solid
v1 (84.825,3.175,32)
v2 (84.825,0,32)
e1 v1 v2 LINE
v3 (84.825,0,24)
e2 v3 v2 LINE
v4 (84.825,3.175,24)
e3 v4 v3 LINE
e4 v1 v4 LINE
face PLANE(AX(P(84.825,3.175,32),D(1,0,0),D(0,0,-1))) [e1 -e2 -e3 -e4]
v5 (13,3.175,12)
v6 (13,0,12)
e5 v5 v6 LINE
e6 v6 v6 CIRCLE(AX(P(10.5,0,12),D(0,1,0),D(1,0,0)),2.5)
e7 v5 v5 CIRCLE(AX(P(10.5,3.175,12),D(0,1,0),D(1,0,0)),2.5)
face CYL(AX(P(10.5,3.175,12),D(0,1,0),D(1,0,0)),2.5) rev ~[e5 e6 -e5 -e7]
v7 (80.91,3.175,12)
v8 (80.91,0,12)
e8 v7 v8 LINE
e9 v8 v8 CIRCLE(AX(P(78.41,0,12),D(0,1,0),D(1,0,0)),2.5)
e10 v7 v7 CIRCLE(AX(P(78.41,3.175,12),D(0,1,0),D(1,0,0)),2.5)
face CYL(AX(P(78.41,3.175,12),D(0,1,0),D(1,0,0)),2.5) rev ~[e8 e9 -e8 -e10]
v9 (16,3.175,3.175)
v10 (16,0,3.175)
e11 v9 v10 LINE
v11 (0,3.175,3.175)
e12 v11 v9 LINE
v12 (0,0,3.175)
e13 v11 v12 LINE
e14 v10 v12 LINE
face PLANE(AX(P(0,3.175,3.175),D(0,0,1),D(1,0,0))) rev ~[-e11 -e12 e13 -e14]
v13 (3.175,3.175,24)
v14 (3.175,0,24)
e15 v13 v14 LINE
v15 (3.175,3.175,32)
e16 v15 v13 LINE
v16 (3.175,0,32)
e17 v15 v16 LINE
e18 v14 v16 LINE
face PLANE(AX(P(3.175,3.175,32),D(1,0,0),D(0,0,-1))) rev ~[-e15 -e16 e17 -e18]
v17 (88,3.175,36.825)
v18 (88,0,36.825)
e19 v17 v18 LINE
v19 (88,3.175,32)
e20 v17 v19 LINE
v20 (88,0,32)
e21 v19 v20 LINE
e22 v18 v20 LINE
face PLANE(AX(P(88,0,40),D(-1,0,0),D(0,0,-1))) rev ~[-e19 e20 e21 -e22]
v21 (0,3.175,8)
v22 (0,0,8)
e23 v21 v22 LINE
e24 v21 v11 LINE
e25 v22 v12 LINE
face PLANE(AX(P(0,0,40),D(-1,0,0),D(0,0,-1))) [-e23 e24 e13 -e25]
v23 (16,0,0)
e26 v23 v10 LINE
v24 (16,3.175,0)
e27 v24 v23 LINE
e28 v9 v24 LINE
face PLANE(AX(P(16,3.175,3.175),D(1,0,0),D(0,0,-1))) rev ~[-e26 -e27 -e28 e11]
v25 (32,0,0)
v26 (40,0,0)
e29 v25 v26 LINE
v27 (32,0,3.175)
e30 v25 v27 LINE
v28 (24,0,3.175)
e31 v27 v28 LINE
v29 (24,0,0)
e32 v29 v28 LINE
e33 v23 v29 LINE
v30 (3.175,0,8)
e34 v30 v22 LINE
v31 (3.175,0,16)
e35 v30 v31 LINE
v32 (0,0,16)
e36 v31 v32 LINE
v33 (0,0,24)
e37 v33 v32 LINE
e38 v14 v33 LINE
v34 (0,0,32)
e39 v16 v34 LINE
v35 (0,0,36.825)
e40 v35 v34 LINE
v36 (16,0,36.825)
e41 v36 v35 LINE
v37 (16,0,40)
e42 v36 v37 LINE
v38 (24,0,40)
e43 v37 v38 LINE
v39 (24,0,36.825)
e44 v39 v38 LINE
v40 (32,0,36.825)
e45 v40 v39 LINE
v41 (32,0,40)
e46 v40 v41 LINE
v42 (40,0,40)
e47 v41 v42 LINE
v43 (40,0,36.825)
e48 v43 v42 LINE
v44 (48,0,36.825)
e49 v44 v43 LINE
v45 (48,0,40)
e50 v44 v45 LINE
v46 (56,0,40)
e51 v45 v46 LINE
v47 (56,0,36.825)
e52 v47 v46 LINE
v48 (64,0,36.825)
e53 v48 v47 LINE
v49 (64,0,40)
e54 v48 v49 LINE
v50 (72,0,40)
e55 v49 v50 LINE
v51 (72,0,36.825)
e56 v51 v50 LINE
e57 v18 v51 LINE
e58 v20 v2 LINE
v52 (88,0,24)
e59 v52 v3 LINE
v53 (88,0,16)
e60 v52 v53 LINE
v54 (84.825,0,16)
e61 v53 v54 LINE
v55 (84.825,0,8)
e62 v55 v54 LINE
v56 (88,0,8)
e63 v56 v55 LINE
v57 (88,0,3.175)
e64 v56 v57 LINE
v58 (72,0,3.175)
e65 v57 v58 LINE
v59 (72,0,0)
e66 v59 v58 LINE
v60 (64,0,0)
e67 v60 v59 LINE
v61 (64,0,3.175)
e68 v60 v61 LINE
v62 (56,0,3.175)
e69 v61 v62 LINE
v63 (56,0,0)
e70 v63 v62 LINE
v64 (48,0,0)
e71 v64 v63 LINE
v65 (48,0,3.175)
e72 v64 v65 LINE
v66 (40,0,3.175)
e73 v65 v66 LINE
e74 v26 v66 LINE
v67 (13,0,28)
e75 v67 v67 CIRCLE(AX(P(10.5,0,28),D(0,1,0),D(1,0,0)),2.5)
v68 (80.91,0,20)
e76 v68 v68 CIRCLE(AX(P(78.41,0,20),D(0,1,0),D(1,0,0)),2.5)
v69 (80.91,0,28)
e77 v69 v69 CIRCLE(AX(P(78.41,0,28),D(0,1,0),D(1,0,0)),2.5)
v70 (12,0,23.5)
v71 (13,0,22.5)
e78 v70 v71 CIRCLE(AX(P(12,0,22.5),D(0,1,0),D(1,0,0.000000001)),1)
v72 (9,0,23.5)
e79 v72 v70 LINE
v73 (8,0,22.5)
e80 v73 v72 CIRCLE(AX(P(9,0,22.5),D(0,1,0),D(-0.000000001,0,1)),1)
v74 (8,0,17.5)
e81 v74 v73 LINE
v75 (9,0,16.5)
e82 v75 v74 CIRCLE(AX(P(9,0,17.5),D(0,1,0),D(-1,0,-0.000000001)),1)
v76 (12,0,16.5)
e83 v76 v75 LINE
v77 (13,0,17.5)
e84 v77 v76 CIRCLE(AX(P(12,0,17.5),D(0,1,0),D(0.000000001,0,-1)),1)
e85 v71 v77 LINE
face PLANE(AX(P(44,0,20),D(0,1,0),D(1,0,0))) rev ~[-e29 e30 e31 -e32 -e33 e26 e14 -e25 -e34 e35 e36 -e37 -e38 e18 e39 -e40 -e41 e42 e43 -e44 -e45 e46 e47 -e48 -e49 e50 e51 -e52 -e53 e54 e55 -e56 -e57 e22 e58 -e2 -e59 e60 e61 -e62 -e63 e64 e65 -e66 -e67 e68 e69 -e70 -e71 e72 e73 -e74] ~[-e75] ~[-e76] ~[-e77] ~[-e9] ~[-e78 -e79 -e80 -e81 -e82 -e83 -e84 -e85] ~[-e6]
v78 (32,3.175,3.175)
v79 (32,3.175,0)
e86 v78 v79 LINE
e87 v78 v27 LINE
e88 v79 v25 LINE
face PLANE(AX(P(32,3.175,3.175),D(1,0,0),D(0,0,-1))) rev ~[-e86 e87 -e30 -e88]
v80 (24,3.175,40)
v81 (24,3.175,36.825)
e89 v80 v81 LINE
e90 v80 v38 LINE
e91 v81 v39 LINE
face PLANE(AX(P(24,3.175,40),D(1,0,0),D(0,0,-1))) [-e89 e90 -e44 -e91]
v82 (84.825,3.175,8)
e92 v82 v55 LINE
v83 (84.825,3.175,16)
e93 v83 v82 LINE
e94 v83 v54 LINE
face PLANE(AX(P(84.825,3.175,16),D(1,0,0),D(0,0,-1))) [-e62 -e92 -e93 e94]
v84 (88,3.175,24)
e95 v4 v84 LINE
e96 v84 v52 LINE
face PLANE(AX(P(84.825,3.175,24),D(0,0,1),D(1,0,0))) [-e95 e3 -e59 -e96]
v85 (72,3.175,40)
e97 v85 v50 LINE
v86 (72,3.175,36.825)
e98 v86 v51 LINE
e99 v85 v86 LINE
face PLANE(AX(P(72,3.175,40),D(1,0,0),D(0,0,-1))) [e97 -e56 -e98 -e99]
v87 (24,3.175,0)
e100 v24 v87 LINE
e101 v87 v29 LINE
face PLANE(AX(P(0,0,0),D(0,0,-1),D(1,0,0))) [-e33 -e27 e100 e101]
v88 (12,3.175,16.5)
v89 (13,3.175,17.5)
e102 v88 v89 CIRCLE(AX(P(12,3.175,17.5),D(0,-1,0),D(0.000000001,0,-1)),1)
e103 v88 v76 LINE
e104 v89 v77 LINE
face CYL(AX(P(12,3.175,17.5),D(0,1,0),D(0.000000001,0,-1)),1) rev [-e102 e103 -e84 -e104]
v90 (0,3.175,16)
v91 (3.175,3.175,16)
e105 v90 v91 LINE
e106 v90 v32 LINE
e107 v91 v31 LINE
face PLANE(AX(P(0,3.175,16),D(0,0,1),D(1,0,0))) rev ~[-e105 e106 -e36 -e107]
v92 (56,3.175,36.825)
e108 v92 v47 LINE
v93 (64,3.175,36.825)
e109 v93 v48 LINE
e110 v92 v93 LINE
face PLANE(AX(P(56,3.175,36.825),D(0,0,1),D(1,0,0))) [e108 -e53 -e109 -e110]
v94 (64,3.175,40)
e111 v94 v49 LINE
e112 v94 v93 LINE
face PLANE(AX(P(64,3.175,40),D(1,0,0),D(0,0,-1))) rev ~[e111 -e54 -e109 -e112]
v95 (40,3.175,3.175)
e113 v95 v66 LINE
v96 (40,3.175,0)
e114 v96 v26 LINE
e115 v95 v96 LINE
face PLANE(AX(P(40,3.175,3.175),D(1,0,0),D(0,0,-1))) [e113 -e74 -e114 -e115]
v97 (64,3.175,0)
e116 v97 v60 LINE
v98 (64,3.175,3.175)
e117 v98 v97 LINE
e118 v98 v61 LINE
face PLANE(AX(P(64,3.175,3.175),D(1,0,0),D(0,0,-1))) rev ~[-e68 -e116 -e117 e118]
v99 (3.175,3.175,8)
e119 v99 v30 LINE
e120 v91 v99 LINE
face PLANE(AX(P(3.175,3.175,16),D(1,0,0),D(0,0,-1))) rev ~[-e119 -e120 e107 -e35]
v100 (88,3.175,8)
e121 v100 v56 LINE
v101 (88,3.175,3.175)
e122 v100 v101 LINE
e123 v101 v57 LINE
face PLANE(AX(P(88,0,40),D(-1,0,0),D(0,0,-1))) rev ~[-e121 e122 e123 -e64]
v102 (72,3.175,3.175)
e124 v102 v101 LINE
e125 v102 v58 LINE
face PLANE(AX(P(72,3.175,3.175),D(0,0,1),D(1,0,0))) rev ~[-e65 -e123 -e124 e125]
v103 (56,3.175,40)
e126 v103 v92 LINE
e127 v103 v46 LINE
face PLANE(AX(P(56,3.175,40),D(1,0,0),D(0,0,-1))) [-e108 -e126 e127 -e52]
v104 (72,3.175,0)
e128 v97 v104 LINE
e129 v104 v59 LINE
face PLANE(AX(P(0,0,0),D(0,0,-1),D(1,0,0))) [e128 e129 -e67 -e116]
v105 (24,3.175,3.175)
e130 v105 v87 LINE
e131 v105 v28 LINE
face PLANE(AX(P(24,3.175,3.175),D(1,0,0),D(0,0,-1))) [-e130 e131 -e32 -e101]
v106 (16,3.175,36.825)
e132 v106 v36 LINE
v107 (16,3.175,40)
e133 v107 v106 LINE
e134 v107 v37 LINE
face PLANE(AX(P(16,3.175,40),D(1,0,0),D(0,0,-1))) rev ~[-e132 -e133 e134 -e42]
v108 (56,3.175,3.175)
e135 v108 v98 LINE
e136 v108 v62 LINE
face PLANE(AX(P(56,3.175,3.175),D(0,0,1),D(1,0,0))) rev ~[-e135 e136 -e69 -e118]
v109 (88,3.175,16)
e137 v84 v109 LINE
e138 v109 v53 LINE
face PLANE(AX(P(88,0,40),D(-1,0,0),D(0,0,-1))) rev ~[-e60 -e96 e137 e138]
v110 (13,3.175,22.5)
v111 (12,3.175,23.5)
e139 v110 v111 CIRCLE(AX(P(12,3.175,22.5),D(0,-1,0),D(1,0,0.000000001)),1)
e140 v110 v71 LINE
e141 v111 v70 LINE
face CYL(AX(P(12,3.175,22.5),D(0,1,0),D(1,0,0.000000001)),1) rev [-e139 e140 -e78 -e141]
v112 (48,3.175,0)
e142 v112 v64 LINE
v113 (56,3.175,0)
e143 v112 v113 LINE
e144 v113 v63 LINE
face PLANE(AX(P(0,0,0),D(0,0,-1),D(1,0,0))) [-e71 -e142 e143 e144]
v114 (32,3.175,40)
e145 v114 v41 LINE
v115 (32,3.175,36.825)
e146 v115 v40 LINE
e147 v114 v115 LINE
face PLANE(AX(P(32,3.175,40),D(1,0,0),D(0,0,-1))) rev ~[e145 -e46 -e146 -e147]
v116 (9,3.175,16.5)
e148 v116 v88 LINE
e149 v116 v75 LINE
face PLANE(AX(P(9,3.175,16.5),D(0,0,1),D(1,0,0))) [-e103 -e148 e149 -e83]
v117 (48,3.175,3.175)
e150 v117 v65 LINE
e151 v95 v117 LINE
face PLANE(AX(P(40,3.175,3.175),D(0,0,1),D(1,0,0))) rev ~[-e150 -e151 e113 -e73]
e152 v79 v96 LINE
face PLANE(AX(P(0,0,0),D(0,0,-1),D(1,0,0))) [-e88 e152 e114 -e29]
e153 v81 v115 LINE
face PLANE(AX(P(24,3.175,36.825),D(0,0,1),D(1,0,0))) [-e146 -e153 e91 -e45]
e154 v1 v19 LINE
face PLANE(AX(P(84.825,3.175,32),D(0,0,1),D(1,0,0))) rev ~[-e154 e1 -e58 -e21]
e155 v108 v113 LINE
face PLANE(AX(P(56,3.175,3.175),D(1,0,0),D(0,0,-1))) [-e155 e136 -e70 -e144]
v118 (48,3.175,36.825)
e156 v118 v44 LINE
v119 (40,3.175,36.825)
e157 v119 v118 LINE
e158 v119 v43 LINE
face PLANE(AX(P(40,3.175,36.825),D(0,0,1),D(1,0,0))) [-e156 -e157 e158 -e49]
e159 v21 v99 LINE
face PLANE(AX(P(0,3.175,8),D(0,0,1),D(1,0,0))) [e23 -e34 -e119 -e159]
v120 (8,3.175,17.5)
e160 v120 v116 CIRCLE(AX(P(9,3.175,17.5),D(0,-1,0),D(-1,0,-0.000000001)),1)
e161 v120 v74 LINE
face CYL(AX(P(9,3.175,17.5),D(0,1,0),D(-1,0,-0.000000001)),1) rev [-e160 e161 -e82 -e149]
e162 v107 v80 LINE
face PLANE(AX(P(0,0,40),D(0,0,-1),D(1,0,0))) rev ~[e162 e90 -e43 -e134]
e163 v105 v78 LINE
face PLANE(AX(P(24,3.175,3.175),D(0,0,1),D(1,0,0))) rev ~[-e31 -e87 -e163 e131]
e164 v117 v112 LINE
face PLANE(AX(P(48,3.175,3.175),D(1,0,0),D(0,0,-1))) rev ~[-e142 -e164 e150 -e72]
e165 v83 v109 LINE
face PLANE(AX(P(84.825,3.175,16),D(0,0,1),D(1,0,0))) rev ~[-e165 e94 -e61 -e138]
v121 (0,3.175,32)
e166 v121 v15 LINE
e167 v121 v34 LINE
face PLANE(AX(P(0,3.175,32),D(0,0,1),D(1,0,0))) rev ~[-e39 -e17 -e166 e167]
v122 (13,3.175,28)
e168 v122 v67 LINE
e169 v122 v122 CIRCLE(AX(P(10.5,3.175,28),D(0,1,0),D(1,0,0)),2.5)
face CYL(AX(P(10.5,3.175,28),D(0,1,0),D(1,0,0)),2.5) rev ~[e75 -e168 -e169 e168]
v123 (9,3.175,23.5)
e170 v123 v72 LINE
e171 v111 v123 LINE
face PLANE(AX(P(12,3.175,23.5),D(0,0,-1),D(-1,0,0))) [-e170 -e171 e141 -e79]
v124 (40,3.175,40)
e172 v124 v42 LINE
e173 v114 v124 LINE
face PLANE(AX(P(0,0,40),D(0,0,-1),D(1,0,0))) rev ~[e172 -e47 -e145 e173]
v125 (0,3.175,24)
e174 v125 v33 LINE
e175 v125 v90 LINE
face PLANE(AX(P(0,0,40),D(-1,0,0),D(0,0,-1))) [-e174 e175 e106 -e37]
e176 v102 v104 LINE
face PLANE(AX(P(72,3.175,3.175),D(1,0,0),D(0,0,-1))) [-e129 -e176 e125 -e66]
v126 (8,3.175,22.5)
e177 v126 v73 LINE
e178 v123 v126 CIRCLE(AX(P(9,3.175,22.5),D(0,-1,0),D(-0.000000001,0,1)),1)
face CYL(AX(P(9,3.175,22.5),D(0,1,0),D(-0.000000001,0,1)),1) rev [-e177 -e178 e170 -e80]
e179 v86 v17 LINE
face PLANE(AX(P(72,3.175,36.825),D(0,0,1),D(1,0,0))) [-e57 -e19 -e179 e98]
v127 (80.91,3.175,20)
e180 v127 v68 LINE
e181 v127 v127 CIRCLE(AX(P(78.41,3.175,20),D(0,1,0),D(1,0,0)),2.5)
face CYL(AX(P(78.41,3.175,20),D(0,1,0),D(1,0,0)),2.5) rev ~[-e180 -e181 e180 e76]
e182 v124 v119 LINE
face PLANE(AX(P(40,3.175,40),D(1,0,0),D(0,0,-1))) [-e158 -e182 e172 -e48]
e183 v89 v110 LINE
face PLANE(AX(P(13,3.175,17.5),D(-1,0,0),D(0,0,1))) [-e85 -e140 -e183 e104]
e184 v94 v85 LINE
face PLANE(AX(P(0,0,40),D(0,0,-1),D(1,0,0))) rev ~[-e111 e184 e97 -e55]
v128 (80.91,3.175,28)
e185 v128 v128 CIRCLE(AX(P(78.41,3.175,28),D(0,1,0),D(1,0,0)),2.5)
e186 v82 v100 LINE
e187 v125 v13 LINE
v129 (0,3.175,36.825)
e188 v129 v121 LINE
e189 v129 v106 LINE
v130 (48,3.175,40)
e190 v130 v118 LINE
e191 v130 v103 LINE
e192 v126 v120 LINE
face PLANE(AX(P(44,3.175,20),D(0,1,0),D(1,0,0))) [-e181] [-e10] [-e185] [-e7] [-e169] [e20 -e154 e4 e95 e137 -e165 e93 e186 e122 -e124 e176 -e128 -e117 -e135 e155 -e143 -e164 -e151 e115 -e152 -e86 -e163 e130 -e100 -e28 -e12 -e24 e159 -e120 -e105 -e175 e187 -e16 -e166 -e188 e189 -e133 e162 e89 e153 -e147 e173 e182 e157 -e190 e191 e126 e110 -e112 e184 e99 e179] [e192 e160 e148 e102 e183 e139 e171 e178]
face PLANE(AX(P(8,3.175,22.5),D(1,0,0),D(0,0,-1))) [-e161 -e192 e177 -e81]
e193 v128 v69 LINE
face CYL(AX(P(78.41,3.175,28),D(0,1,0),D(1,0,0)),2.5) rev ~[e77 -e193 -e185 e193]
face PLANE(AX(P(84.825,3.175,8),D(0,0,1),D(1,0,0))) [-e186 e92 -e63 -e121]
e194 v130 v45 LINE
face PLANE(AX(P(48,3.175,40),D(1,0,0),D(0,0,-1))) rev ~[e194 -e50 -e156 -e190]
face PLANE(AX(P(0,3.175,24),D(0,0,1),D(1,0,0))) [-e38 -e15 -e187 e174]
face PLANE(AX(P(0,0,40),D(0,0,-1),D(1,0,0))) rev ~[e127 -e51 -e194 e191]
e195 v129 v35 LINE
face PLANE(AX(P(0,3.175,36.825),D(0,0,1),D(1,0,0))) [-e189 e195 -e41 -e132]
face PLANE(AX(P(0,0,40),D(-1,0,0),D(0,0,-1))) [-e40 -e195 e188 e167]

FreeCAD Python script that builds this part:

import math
import FreeCAD as App
import Part
import Sketcher

V = App.Vector

doc = App.newDocument("Part")
body = doc.addObject("PartDesign::Body", "Body")

# Sketch on XZ plane
sketch1 = body.newObject("Sketcher::SketchObject", "Sketch")
sketch1.AttachmentSupport = (doc.getObject("XZ_Plane"), [""])
sketch1.MapMode = "FlatFace"
sketch1.addGeometry([
    Part.LineSegment(V(0, 0, 0), V(0, 40, 0)),
    Part.LineSegment(V(0, 40, 0), V(88, 40, 0)),
    Part.LineSegment(V(88, 40, 0), V(88, 0, 0)),
    Part.LineSegment(V(88, 0, 0), V(0, 0, 0)),
], False)
sketch1.addConstraint([
    Sketcher.Constraint("Coincident", 0, 2, 1, 1),
    Sketcher.Constraint("Coincident", 1, 2, 2, 1),
    Sketcher.Constraint("Coincident", 2, 2, 3, 1),
    Sketcher.Constraint("Coincident", 3, 2, 0, 1),
    Sketcher.Constraint("Vertical", 0),
    Sketcher.Constraint("Horizontal", 1),
    Sketcher.Constraint("Vertical", 2),
    Sketcher.Constraint("Horizontal", 3),
    Sketcher.Constraint("Coincident", 3, 2, -1, 1),
    Sketcher.Constraint("DistanceX", 1, 1, 1, 2, 88.0),
    Sketcher.Constraint("DistanceY", 0, 1, 0, 2, 40.0),
])
pad1 = body.newObject("PartDesign::Pad", "Pad")
pad1.Profile = sketch1
pad1.Length = 3.175
pad1.Reversed = True

# Sketch on XZ plane
sketch2 = body.newObject("Sketcher::SketchObject", "Sketch001")
sketch2.AttachmentSupport = (doc.getObject("XZ_Plane"), [""])
sketch2.MapMode = "FlatFace"
sketch2.AttachmentOffset = App.Placement(V(0, 0, -3.175), App.Rotation())
sketch2.addGeometry([
    Part.LineSegment(V(0, 0, 0), V(0, 3.2, 0)),
    Part.LineSegment(V(0, 3.2, 0), V(16, 3.2, 0)),
    Part.LineSegment(V(16, 3.2, 0), V(16, 0, 0)),
    Part.LineSegment(V(16, 0, 0), V(0, 0, 0)),
], False)
sketch2.addConstraint([
    Sketcher.Constraint("Coincident", 0, 2, 1, 1),
    Sketcher.Constraint("Coincident", 1, 2, 2, 1),
    Sketcher.Constraint("Coincident", 2, 2, 3, 1),
    Sketcher.Constraint("Coincident", 3, 2, 0, 1),
    Sketcher.Constraint("Vertical", 0),
    Sketcher.Constraint("Horizontal", 1),
    Sketcher.Constraint("Vertical", 2),
    Sketcher.Constraint("Horizontal", 3),
    Sketcher.Constraint("Coincident", 3, 2, -1, 1),
    Sketcher.Constraint("DistanceX", 1, 1, 1, 2, 16.0),
    Sketcher.Constraint("DistanceY", 0, 1, 0, 2, 3.175),
])
pocket1 = body.newObject("PartDesign::Pocket", "Pocket")
pocket1.Profile = sketch2
pocket1.Type = "UpToFirst"
pocket1.Reversed = True

# Sketch on XZ plane
sketch3 = body.newObject("Sketcher::SketchObject", "Sketch002")
sketch3.AttachmentSupport = (doc.getObject("XZ_Plane"), [""])
sketch3.MapMode = "FlatFace"
sketch3.AttachmentOffset = App.Placement(V(0, 0, -3.175), App.Rotation())
sketch3.addGeometry([
    Part.LineSegment(V(40, 0, 0), V(40, 3.2, 0)),
    Part.LineSegment(V(40, 3.2, 0), V(48, 3.2, 0)),
    Part.LineSegment(V(48, 3.2, 0), V(48, 0, 0)),
    Part.LineSegment(V(48, 0, 0), V(40, 0, 0)),
], False)
sketch3.addConstraint([
    Sketcher.Constraint("Coincident", 0, 2, 1, 1),
    Sketcher.Constraint("Coincident", 1, 2, 2, 1),
    Sketcher.Constraint("Coincident", 2, 2, 3, 1),
    Sketcher.Constraint("Coincident", 3, 2, 0, 1),
    Sketcher.Constraint("Vertical", 0),
    Sketcher.Constraint("Horizontal", 1),
    Sketcher.Constraint("Vertical", 2),
    Sketcher.Constraint("Horizontal", 3),
    Sketcher.Constraint("PointOnObject", 2, 2, -1),
    Sketcher.Constraint("DistanceX", 1, 1, 1, 2, 8.0),
    Sketcher.Constraint("DistanceX", -1, 1, 0, 2, 40.0),
    Sketcher.Constraint("DistanceY", 0, 1, 0, 2, 3.175),
])
pocket2 = body.newObject("PartDesign::Pocket", "Pocket001")
pocket2.Profile = sketch3
pocket2.Type = "UpToFirst"
pocket2.Reversed = True

# Sketch on XZ plane
sketch4 = body.newObject("Sketcher::SketchObject", "Sketch003")
sketch4.AttachmentSupport = (doc.getObject("XZ_Plane"), [""])
sketch4.MapMode = "FlatFace"
sketch4.AttachmentOffset = App.Placement(V(0, 0, -3.175), App.Rotation())
sketch4.addGeometry([
    Part.LineSegment(V(56, 0, 0), V(56, 3.2, 0)),
    Part.LineSegment(V(56, 3.2, 0), V(64, 3.2, 0)),
    Part.LineSegment(V(64, 3.2, 0), V(64, 0, 0)),
    Part.LineSegment(V(64, 0, 0), V(56, 0, 0)),
], False)
sketch4.addConstraint([
    Sketcher.Constraint("Coincident", 0, 2, 1, 1),
    Sketcher.Constraint("Coincident", 1, 2, 2, 1),
    Sketcher.Constraint("Coincident", 2, 2, 3, 1),
    Sketcher.Constraint("Coincident", 3, 2, 0, 1),
    Sketcher.Constraint("Vertical", 0),
    Sketcher.Constraint("Horizontal", 1),
    Sketcher.Constraint("Vertical", 2),
    Sketcher.Constraint("Horizontal", 3),
    Sketcher.Constraint("PointOnObject", 2, 2, -1),
    Sketcher.Constraint("DistanceX", 1, 1, 1, 2, 8.0),
    Sketcher.Constraint("DistanceX", -1, 1, 0, 2, 56.0),
    Sketcher.Constraint("DistanceY", 0, 1, 0, 2, 3.175),
])
pocket3 = body.newObject("PartDesign::Pocket", "Pocket002")
pocket3.Profile = sketch4
pocket3.Type = "UpToFirst"
pocket3.Reversed = True

# Sketch on XZ plane
sketch5 = body.newObject("Sketcher::SketchObject", "Sketch004")
sketch5.AttachmentSupport = (doc.getObject("XZ_Plane"), [""])
sketch5.MapMode = "FlatFace"
sketch5.AttachmentOffset = App.Placement(V(0, 0, -3.175), App.Rotation())
sketch5.addGeometry([
    Part.LineSegment(V(72, 0, 0), V(72, 3.2, 0)),
    Part.LineSegment(V(72, 3.2, 0), V(88, 3.2, 0)),
    Part.LineSegment(V(88, 3.2, 0), V(88, 0, 0)),
    Part.LineSegment(V(88, 0, 0), V(72, 0, 0)),
], False)
sketch5.addConstraint([
    Sketcher.Constraint("Coincident", 0, 2, 1, 1),
    Sketcher.Constraint("Coincident", 1, 2, 2, 1),
    Sketcher.Constraint("Coincident", 2, 2, 3, 1),
    Sketcher.Constraint("Coincident", 3, 2, 0, 1),
    Sketcher.Constraint("Vertical", 0),
    Sketcher.Constraint("Horizontal", 1),
    Sketcher.Constraint("Vertical", 2),
    Sketcher.Constraint("Horizontal", 3),
    Sketcher.Constraint("PointOnObject", 2, 2, -1),
    Sketcher.Constraint("DistanceX", 1, 1, 1, 2, 16.0),
    Sketcher.Constraint("DistanceX", -1, 1, 0, 2, 72.0),
    Sketcher.Constraint("DistanceY", 0, 1, 0, 2, 3.175),
])
pocket4 = body.newObject("PartDesign::Pocket", "Pocket003")
pocket4.Profile = sketch5
pocket4.Type = "UpToFirst"
pocket4.Reversed = True

# Sketch on XZ plane
sketch6 = body.newObject("Sketcher::SketchObject", "Sketch005")
sketch6.AttachmentSupport = (doc.getObject("XZ_Plane"), [""])
sketch6.MapMode = "FlatFace"
sketch6.AttachmentOffset = App.Placement(V(0, 0, -3.175), App.Rotation())
sketch6.addGeometry([
    Part.LineSegment(V(24, 0, 0), V(24, 3.2, 0)),
    Part.LineSegment(V(24, 3.2, 0), V(32, 3.2, 0)),
    Part.LineSegment(V(32, 3.2, 0), V(32, 0, 0)),
    Part.LineSegment(V(32, 0, 0), V(24, 0, 0)),
], False)
sketch6.addConstraint([
    Sketcher.Constraint("Coincident", 0, 2, 1, 1),
    Sketcher.Constraint("Coincident", 1, 2, 2, 1),
    Sketcher.Constraint("Coincident", 2, 2, 3, 1),
    Sketcher.Constraint("Coincident", 3, 2, 0, 1),
    Sketcher.Constraint("Vertical", 0),
    Sketcher.Constraint("Horizontal", 1),
    Sketcher.Constraint("Vertical", 2),
    Sketcher.Constraint("Horizontal", 3),
    Sketcher.Constraint("PointOnObject", 2, 2, -1),
    Sketcher.Constraint("DistanceX", 1, 1, 1, 2, 8.0),
    Sketcher.Constraint("DistanceX", -1, 1, 0, 2, 24.0),
    Sketcher.Constraint("DistanceY", 0, 1, 0, 2, 3.175),
])
pocket5 = body.newObject("PartDesign::Pocket", "Pocket004")
pocket5.Profile = sketch6
pocket5.Type = "UpToFirst"
pocket5.Reversed = True

# Sketch on XZ plane
sketch7 = body.newObject("Sketcher::SketchObject", "Sketch006")
sketch7.AttachmentSupport = (doc.getObject("XZ_Plane"), [""])
sketch7.MapMode = "FlatFace"
sketch7.AttachmentOffset = App.Placement(V(0, 0, -3.175), App.Rotation())
sketch7.addGeometry([
    Part.LineSegment(V(40, 36.8, 0), V(40, 40, 0)),
    Part.LineSegment(V(40, 40, 0), V(48, 40, 0)),
    Part.LineSegment(V(48, 40, 0), V(48, 36.8, 0)),
    Part.LineSegment(V(48, 36.8, 0), V(40, 36.8, 0)),
], False)
sketch7.addConstraint([
    Sketcher.Constraint("Coincident", 0, 2, 1, 1),
    Sketcher.Constraint("Coincident", 1, 2, 2, 1),
    Sketcher.Constraint("Coincident", 2, 2, 3, 1),
    Sketcher.Constraint("Coincident", 3, 2, 0, 1),
    Sketcher.Constraint("Vertical", 0),
    Sketcher.Constraint("Horizontal", 1),
    Sketcher.Constraint("Vertical", 2),
    Sketcher.Constraint("Horizontal", 3),
    Sketcher.Constraint("DistanceX", 1, 1, 1, 2, 8.0),
    Sketcher.Constraint("DistanceX", -1, 1, 0, 2, 40.0),
    Sketcher.Constraint("DistanceY", -1, 1, 0, 2, 40.0),
    Sketcher.Constraint("DistanceY", 0, 1, 0, 2, 3.175),
])
pocket6 = body.newObject("PartDesign::Pocket", "Pocket005")
pocket6.Profile = sketch7
pocket6.Type = "UpToFirst"
pocket6.Reversed = True

# Sketch on XZ plane
sketch8 = body.newObject("Sketcher::SketchObject", "Sketch007")
sketch8.AttachmentSupport = (doc.getObject("XZ_Plane"), [""])
sketch8.MapMode = "FlatFace"
sketch8.AttachmentOffset = App.Placement(V(0, 0, -3.175), App.Rotation())
sketch8.addGeometry([
    Part.LineSegment(V(24, 36.8, 0), V(24, 40, 0)),
    Part.LineSegment(V(24, 40, 0), V(32, 40, 0)),
    Part.LineSegment(V(32, 40, 0), V(32, 36.8, 0)),
    Part.LineSegment(V(32, 36.8, 0), V(24, 36.8, 0)),
], False)
sketch8.addConstraint([
    Sketcher.Constraint("Coincident", 0, 2, 1, 1),
    Sketcher.Constraint("Coincident", 1, 2, 2, 1),
    Sketcher.Constraint("Coincident", 2, 2, 3, 1),
    Sketcher.Constraint("Coincident", 3, 2, 0, 1),
    Sketcher.Constraint("Vertical", 0),
    Sketcher.Constraint("Horizontal", 1),
    Sketcher.Constraint("Vertical", 2),
    Sketcher.Constraint("Horizontal", 3),
    Sketcher.Constraint("DistanceX", 1, 1, 1, 2, 8.0),
    Sketcher.Constraint("DistanceX", -1, 1, 0, 2, 24.0),
    Sketcher.Constraint("DistanceY", -1, 1, 0, 2, 40.0),
    Sketcher.Constraint("DistanceY", 0, 1, 0, 2, 3.175),
])
pocket7 = body.newObject("PartDesign::Pocket", "Pocket006")
pocket7.Profile = sketch8
pocket7.Type = "UpToFirst"
pocket7.Reversed = True

# Sketch on XZ plane
sketch9 = body.newObject("Sketcher::SketchObject", "Sketch008")
sketch9.AttachmentSupport = (doc.getObject("XZ_Plane"), [""])
sketch9.MapMode = "FlatFace"
sketch9.AttachmentOffset = App.Placement(V(0, 0, -3.175), App.Rotation())
sketch9.addGeometry([
    Part.LineSegment(V(0, 36.8, 0), V(0, 40, 0)),
    Part.LineSegment(V(0, 40, 0), V(16, 40, 0)),
    Part.LineSegment(V(16, 40, 0), V(16, 36.8, 0)),
    Part.LineSegment(V(16, 36.8, 0), V(0, 36.8, 0)),
], False)
sketch9.addConstraint([
    Sketcher.Constraint("Coincident", 0, 2, 1, 1),
    Sketcher.Constraint("Coincident", 1, 2, 2, 1),
    Sketcher.Constraint("Coincident", 2, 2, 3, 1),
    Sketcher.Constraint("Coincident", 3, 2, 0, 1),
    Sketcher.Constraint("Vertical", 0),
    Sketcher.Constraint("Horizontal", 1),
    Sketcher.Constraint("Vertical", 2),
    Sketcher.Constraint("Horizontal", 3),
    Sketcher.Constraint("PointOnObject", 0, 2, -2),
    Sketcher.Constraint("DistanceX", 1, 1, 1, 2, 16.0),
    Sketcher.Constraint("DistanceY", -1, 1, 0, 2, 40.0),
    Sketcher.Constraint("DistanceY", 0, 1, 0, 2, 3.175),
])
pocket8 = body.newObject("PartDesign::Pocket", "Pocket007")
pocket8.Profile = sketch9
pocket8.Type = "UpToFirst"
pocket8.Reversed = True

# Sketch on XZ plane
sketch10 = body.newObject("Sketcher::SketchObject", "Sketch009")
sketch10.AttachmentSupport = (doc.getObject("XZ_Plane"), [""])
sketch10.MapMode = "FlatFace"
sketch10.AttachmentOffset = App.Placement(V(0, 0, -3.175), App.Rotation())
sketch10.addGeometry([
    Part.LineSegment(V(72, 36.8, 0), V(72, 40, 0)),
    Part.LineSegment(V(72, 40, 0), V(88, 40, 0)),
    Part.LineSegment(V(88, 40, 0), V(88, 36.8, 0)),
    Part.LineSegment(V(88, 36.8, 0), V(72, 36.8, 0)),
], False)
sketch10.addConstraint([
    Sketcher.Constraint("Coincident", 0, 2, 1, 1),
    Sketcher.Constraint("Coincident", 1, 2, 2, 1),
    Sketcher.Constraint("Coincident", 2, 2, 3, 1),
    Sketcher.Constraint("Coincident", 3, 2, 0, 1),
    Sketcher.Constraint("Vertical", 0),
    Sketcher.Constraint("Horizontal", 1),
    Sketcher.Constraint("Vertical", 2),
    Sketcher.Constraint("Horizontal", 3),
    Sketcher.Constraint("DistanceX", 1, 1, 1, 2, 16.0),
    Sketcher.Constraint("DistanceX", -1, 1, 0, 2, 72.0),
    Sketcher.Constraint("DistanceY", -1, 1, 0, 2, 40.0),
    Sketcher.Constraint("DistanceY", 0, 1, 0, 2, 3.175),
])
pocket9 = body.newObject("PartDesign::Pocket", "Pocket008")
pocket9.Profile = sketch10
pocket9.Type = "UpToFirst"
pocket9.Reversed = True

# Sketch on XZ plane
sketch11 = body.newObject("Sketcher::SketchObject", "Sketch010")
sketch11.AttachmentSupport = (doc.getObject("XZ_Plane"), [""])
sketch11.MapMode = "FlatFace"
sketch11.AttachmentOffset = App.Placement(V(0, 0, -3.175), App.Rotation())
sketch11.addGeometry([
    Part.LineSegment(V(56, 36.8, 0), V(56, 40, 0)),
    Part.LineSegment(V(56, 40, 0), V(64, 40, 0)),
    Part.LineSegment(V(64, 40, 0), V(64, 36.8, 0)),
    Part.LineSegment(V(64, 36.8, 0), V(56, 36.8, 0)),
], False)
sketch11.addConstraint([
    Sketcher.Constraint("Coincident", 0, 2, 1, 1),
    Sketcher.Constraint("Coincident", 1, 2, 2, 1),
    Sketcher.Constraint("Coincident", 2, 2, 3, 1),
    Sketcher.Constraint("Coincident", 3, 2, 0, 1),
    Sketcher.Constraint("Vertical", 0),
    Sketcher.Constraint("Horizontal", 1),
    Sketcher.Constraint("Vertical", 2),
    Sketcher.Constraint("Horizontal", 3),
    Sketcher.Constraint("DistanceX", 1, 1, 1, 2, 8.0),
    Sketcher.Constraint("DistanceX", -1, 1, 0, 2, 56.0),
    Sketcher.Constraint("DistanceY", -1, 1, 0, 2, 40.0),
    Sketcher.Constraint("DistanceY", 0, 1, 0, 2, 3.175),
])
pocket10 = body.newObject("PartDesign::Pocket", "Pocket009")
pocket10.Profile = sketch11
pocket10.Type = "UpToFirst"
pocket10.Reversed = True

# Sketch on XZ plane
sketch12 = body.newObject("Sketcher::SketchObject", "Sketch011")
sketch12.AttachmentSupport = (doc.getObject("XZ_Plane"), [""])
sketch12.MapMode = "FlatFace"
sketch12.AttachmentOffset = App.Placement(V(0, 0, -3.175), App.Rotation())
sketch12.addGeometry([
    Part.LineSegment(V(0, 24, 0), V(0, 32, 0)),
    Part.LineSegment(V(0, 32, 0), V(3.2, 32, 0)),
    Part.LineSegment(V(3.2, 32, 0), V(3.2, 24, 0)),
    Part.LineSegment(V(3.2, 24, 0), V(0, 24, 0)),
], False)
sketch12.addConstraint([
    Sketcher.Constraint("Coincident", 0, 2, 1, 1),
    Sketcher.Constraint("Coincident", 1, 2, 2, 1),
    Sketcher.Constraint("Coincident", 2, 2, 3, 1),
    Sketcher.Constraint("Coincident", 3, 2, 0, 1),
    Sketcher.Constraint("Vertical", 0),
    Sketcher.Constraint("Horizontal", 1),
    Sketcher.Constraint("Vertical", 2),
    Sketcher.Constraint("Horizontal", 3),
    Sketcher.Constraint("PointOnObject", 0, 2, -2),
    Sketcher.Constraint("DistanceY", 0, 1, 0, 2, 8.0),
    Sketcher.Constraint("DistanceY", -1, 1, 0, 2, 32.0),
    Sketcher.Constraint("DistanceX", 1, 1, 1, 2, 3.175),
])
pocket11 = body.newObject("PartDesign::Pocket", "Pocket010")
pocket11.Profile = sketch12
pocket11.Type = "UpToFirst"
pocket11.Reversed = True

# Sketch on XZ plane
sketch13 = body.newObject("Sketcher::SketchObject", "Sketch012")
sketch13.AttachmentSupport = (doc.getObject("XZ_Plane"), [""])
sketch13.MapMode = "FlatFace"
sketch13.AttachmentOffset = App.Placement(V(0, 0, -3.175), App.Rotation())
sketch13.addGeometry([
    Part.LineSegment(V(0, 8, 0), V(0, 16, 0)),
    Part.LineSegment(V(0, 16, 0), V(3.2, 16, 0)),
    Part.LineSegment(V(3.2, 16, 0), V(3.2, 8, 0)),
    Part.LineSegment(V(3.2, 8, 0), V(0, 8, 0)),
], False)
sketch13.addConstraint([
    Sketcher.Constraint("Coincident", 0, 2, 1, 1),
    Sketcher.Constraint("Coincident", 1, 2, 2, 1),
    Sketcher.Constraint("Coincident", 2, 2, 3, 1),
    Sketcher.Constraint("Coincident", 3, 2, 0, 1),
    Sketcher.Constraint("Vertical", 0),
    Sketcher.Constraint("Horizontal", 1),
    Sketcher.Constraint("Vertical", 2),
    Sketcher.Constraint("Horizontal", 3),
    Sketcher.Constraint("PointOnObject", 0, 2, -2),
    Sketcher.Constraint("DistanceY", 0, 1, 0, 2, 8.0),
    Sketcher.Constraint("DistanceY", -1, 1, 0, 2, 16.0),
    Sketcher.Constraint("DistanceX", 1, 1, 1, 2, 3.175),
])
pocket12 = body.newObject("PartDesign::Pocket", "Pocket011")
pocket12.Profile = sketch13
pocket12.Type = "UpToFirst"
pocket12.Reversed = True

# Sketch on XZ plane
sketch14 = body.newObject("Sketcher::SketchObject", "Sketch013")
sketch14.AttachmentSupport = (doc.getObject("XZ_Plane"), [""])
sketch14.MapMode = "FlatFace"
sketch14.AttachmentOffset = App.Placement(V(0, 0, -3.175), App.Rotation())
sketch14.addGeometry([
    Part.LineSegment(V(84.8, 24, 0), V(84.8, 32, 0)),
    Part.LineSegment(V(84.8, 32, 0), V(88, 32, 0)),
    Part.LineSegment(V(88, 32, 0), V(88, 24, 0)),
    Part.LineSegment(V(88, 24, 0), V(84.8, 24, 0)),
], False)
sketch14.addConstraint([
    Sketcher.Constraint("Coincident", 0, 2, 1, 1),
    Sketcher.Constraint("Coincident", 1, 2, 2, 1),
    Sketcher.Constraint("Coincident", 2, 2, 3, 1),
    Sketcher.Constraint("Coincident", 3, 2, 0, 1),
    Sketcher.Constraint("Vertical", 0),
    Sketcher.Constraint("Horizontal", 1),
    Sketcher.Constraint("Vertical", 2),
    Sketcher.Constraint("Horizontal", 3),
    Sketcher.Constraint("DistanceY", 0, 1, 0, 2, 8.0),
    Sketcher.Constraint("DistanceY", -1, 1, 0, 2, 32.0),
    Sketcher.Constraint("DistanceX", -1, 1, 1, 2, 88.0),
    Sketcher.Constraint("DistanceX", 1, 1, 1, 2, 3.175),
])
pocket13 = body.newObject("PartDesign::Pocket", "Pocket012")
pocket13.Profile = sketch14
pocket13.Type = "UpToFirst"
pocket13.Reversed = True

# Sketch on XZ plane
sketch15 = body.newObject("Sketcher::SketchObject", "Sketch014")
sketch15.AttachmentSupport = (doc.getObject("XZ_Plane"), [""])
sketch15.MapMode = "FlatFace"
sketch15.AttachmentOffset = App.Placement(V(0, 0, -3.175), App.Rotation())
sketch15.addGeometry([
    Part.LineSegment(V(84.8, 8, 0), V(84.8, 16, 0)),
    Part.LineSegment(V(84.8, 16, 0), V(88, 16, 0)),
    Part.LineSegment(V(88, 16, 0), V(88, 8, 0)),
    Part.LineSegment(V(88, 8, 0), V(84.8, 8, 0)),
], False)
sketch15.addConstraint([
    Sketcher.Constraint("Coincident", 0, 2, 1, 1),
    Sketcher.Constraint("Coincident", 1, 2, 2, 1),
    Sketcher.Constraint("Coincident", 2, 2, 3, 1),
    Sketcher.Constraint("Coincident", 3, 2, 0, 1),
    Sketcher.Constraint("Vertical", 0),
    Sketcher.Constraint("Horizontal", 1),
    Sketcher.Constraint("Vertical", 2),
    Sketcher.Constraint("Horizontal", 3),
    Sketcher.Constraint("DistanceY", 0, 1, 0, 2, 8.0),
    Sketcher.Constraint("DistanceY", -1, 1, 0, 2, 16.0),
    Sketcher.Constraint("DistanceX", -1, 1, 1, 2, 88.0),
    Sketcher.Constraint("DistanceX", 1, 1, 1, 2, 3.175),
])
pocket14 = body.newObject("PartDesign::Pocket", "Pocket013")
pocket14.Profile = sketch15
pocket14.Type = "UpToFirst"
pocket14.Reversed = True

# Sketch on XZ plane
sketch16 = body.newObject("Sketcher::SketchObject", "Sketch015")
sketch16.AttachmentSupport = (doc.getObject("XZ_Plane"), [""])
sketch16.MapMode = "FlatFace"
sketch16.AttachmentOffset = App.Placement(V(0, 0, -3.175), App.Rotation())
sketch16.addGeometry(Part.Circle(V(78.4, 28, 0), V(0, 0, 1), 2.5), False)
sketch16.addConstraint([
    Sketcher.Constraint("Diameter", 0, 5.0),
    Sketcher.Constraint("DistanceY", -1, 1, 0, 3, 28.0),
    Sketcher.Constraint("DistanceX", -1, 1, 0, 3, 78.41),
])
pocket15 = body.newObject("PartDesign::Pocket", "Pocket014")
pocket15.Profile = sketch16
pocket15.Type = "UpToFirst"
pocket15.Reversed = True

# Sketch on XZ plane
sketch17 = body.newObject("Sketcher::SketchObject", "Sketch016")
sketch17.AttachmentSupport = (doc.getObject("XZ_Plane"), [""])
sketch17.MapMode = "FlatFace"
sketch17.AttachmentOffset = App.Placement(V(0, 0, -3.175), App.Rotation())
sketch17.addGeometry(Part.Circle(V(78.4, 12, 0), V(0, 0, 1), 2.5), False)
sketch17.addConstraint([
    Sketcher.Constraint("Diameter", 0, 5.0),
    Sketcher.Constraint("DistanceY", -1, 1, 0, 3, 12.0),
    Sketcher.Constraint("DistanceX", -1, 1, 0, 3, 78.41),
])
pocket16 = body.newObject("PartDesign::Pocket", "Pocket015")
pocket16.Profile = sketch17
pocket16.Type = "UpToFirst"
pocket16.Reversed = True

# Sketch on XZ plane
sketch18 = body.newObject("Sketcher::SketchObject", "Sketch017")
sketch18.AttachmentSupport = (doc.getObject("XZ_Plane"), [""])
sketch18.MapMode = "FlatFace"
sketch18.AttachmentOffset = App.Placement(V(0, 0, -3.175), App.Rotation())
sketch18.addGeometry(Part.Circle(V(78.4, 20, 0), V(0, 0, 1), 2.5), False)
sketch18.addConstraint([
    Sketcher.Constraint("Diameter", 0, 5.0),
    Sketcher.Constraint("DistanceY", -1, 1, 0, 3, 20.0),
    Sketcher.Constraint("DistanceX", -1, 1, 0, 3, 78.41),
])
pocket17 = body.newObject("PartDesign::Pocket", "Pocket016")
pocket17.Profile = sketch18
pocket17.Type = "UpToFirst"
pocket17.Reversed = True

# Sketch on XZ plane
sketch19 = body.newObject("Sketcher::SketchObject", "Sketch018")
sketch19.AttachmentSupport = (doc.getObject("XZ_Plane"), [""])
sketch19.MapMode = "FlatFace"
sketch19.AttachmentOffset = App.Placement(V(0, 0, -3.175), App.Rotation())
sketch19.addGeometry(Part.Circle(V(10.5, 12, 0), V(0, 0, 1), 2.5), False)
sketch19.addConstraint([
    Sketcher.Constraint("Diameter", 0, 5.0),
    Sketcher.Constraint("DistanceY", -1, 1, 0, 3, 12.0),
    Sketcher.Constraint("DistanceX", -1, 1, 0, 3, 10.5),
])
pocket18 = body.newObject("PartDesign::Pocket", "Pocket017")
pocket18.Profile = sketch19
pocket18.Type = "UpToFirst"
pocket18.Reversed = True

# Sketch on XZ plane
sketch20 = body.newObject("Sketcher::SketchObject", "Sketch019")
sketch20.AttachmentSupport = (doc.getObject("XZ_Plane"), [""])
sketch20.MapMode = "FlatFace"
sketch20.AttachmentOffset = App.Placement(V(0, 0, -3.175), App.Rotation())
sketch20.addGeometry(Part.Circle(V(10.5, 28, 0), V(0, 0, 1), 2.5), False)
sketch20.addConstraint([
    Sketcher.Constraint("Diameter", 0, 5.0),
    Sketcher.Constraint("DistanceY", -1, 1, 0, 3, 28.0),
    Sketcher.Constraint("DistanceX", -1, 1, 0, 3, 10.5),
])
pocket19 = body.newObject("PartDesign::Pocket", "Pocket018")
pocket19.Profile = sketch20
pocket19.Type = "UpToFirst"
pocket19.Reversed = True

# Sketch on XZ plane
sketch21 = body.newObject("Sketcher::SketchObject", "Sketch020")
sketch21.AttachmentSupport = (doc.getObject("XZ_Plane"), [""])
sketch21.MapMode = "FlatFace"
sketch21.AttachmentOffset = App.Placement(V(0, 0, -3.175), App.Rotation())
sketch21.addGeometry([
    Part.LineSegment(V(12, 16.5, 0), V(9, 16.5, 0)),  # 0
    Part.ArcOfCircle(Part.Circle(V(9, 17.5, 0), V(0, 0, 1), 1), math.radians(-180), math.radians(-90)),  # 1
    Part.LineSegment(V(8, 17.5, 0), V(8, 22.5, 0)),  # 2
    Part.ArcOfCircle(Part.Circle(V(9, 22.5, 0), V(0, 0, 1), 1), math.radians(90), math.radians(180)),  # 3
    Part.LineSegment(V(9, 23.5, 0), V(12, 23.5, 0)),  # 4
    Part.ArcOfCircle(Part.Circle(V(12, 22.5, 0), V(0, 0, 1), 1), math.radians(0), math.radians(90)),  # 5
    Part.LineSegment(V(13, 22.5, 0), V(13, 17.5, 0)),  # 6
    Part.ArcOfCircle(Part.Circle(V(12, 17.5, 0), V(0, 0, 1), 1), math.radians(-90), math.radians(0)),  # 7
], False)
sketch21.addConstraint([
    Sketcher.Constraint("Tangent", 0, 2, 1, 2),
    Sketcher.Constraint("Tangent", 1, 1, 2, 1),
    Sketcher.Constraint("Tangent", 2, 2, 3, 2),
    Sketcher.Constraint("Tangent", 3, 1, 4, 1),
    Sketcher.Constraint("Tangent", 4, 2, 5, 2),
    Sketcher.Constraint("Tangent", 5, 1, 6, 1),
    Sketcher.Constraint("Tangent", 6, 2, 7, 2),
    Sketcher.Constraint("Tangent", 7, 1, 0, 1),
    Sketcher.Constraint("Horizontal", 0),
    Sketcher.Constraint("Vertical", 2),
    Sketcher.Constraint("Horizontal", 4),
    Sketcher.Constraint("Vertical", 6),
    Sketcher.Constraint("Equal", 1, 3),
    Sketcher.Constraint("Equal", 3, 5),
    Sketcher.Constraint("Equal", 5, 7),
    Sketcher.Constraint("Radius", 1, 1.0),
    Sketcher.Constraint("DistanceX", 0, 2, 0, 1, 3.0),
    Sketcher.Constraint("DistanceY", 2, 1, 2, 2, 5.0),
    Sketcher.Constraint("DistanceX", -1, 1, 1, 3, 9.0),
    Sketcher.Constraint("DistanceY", -1, 1, 1, 3, 17.5),
])
pocket20 = body.newObject("PartDesign::Pocket", "Pocket019")
pocket20.Profile = sketch21
pocket20.Type = "UpToFirst"
pocket20.Reversed = True

doc.recompute()
